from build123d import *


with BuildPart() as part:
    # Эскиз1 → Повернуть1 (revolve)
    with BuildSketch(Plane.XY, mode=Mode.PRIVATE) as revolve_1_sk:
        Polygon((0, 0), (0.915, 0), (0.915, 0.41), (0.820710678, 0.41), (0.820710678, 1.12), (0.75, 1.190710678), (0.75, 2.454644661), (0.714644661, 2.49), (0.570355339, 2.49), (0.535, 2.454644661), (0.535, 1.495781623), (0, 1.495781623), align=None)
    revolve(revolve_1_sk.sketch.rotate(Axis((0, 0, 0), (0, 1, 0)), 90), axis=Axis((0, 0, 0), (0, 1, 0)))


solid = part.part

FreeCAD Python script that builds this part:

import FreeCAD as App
import Part
import Sketcher
from FreeCAD import Vector


def add_polygon(sketch, points):
    """Adds a closed chain of lines whose ends are joined by coincident constraints."""
    first, n = sketch.GeometryCount, len(points)
    for a, b in zip(points, points[1:] + points[:1]):
        sketch.addGeometry(Part.LineSegment(App.Vector(*a, 0), App.Vector(*b, 0)), False)
    for i in range(n):
        sketch.addConstraint(Sketcher.Constraint("Coincident", first + i, 2, first + (i + 1) % n, 1))

doc = App.newDocument("Part")
body = doc.addObject("PartDesign::Body", "Body")

# Sketch on XY plane
sketch1 = body.newObject("Sketcher::SketchObject", "Sketch")
sketch1.AttachmentSupport = (doc.getObject("XY_Plane"), [""])
sketch1.MapMode = "FlatFace"
add_polygon(sketch1, [(0, 0), (0.915, 0), (0.915, 0.41), (0.821, 0.41), (0.821, 1.12), (0.75, 1.191), (0.75, 2.455), (0.715, 2.49), (0.57, 2.49), (0.535, 2.455), (0.535, 1.496), (0, 1.496)])  # lines 0-11
sketch1.addConstraint(Sketcher.Constraint("Horizontal", 0))
sketch1.addConstraint(Sketcher.Constraint("Vertical", 1))
sketch1.addConstraint(Sketcher.Constraint("Horizontal", 2))
sketch1.addConstraint(Sketcher.Constraint("Vertical", 3))
sketch1.addConstraint(Sketcher.Constraint("Vertical", 5))
sketch1.addConstraint(Sketcher.Constraint("Horizontal", 7))
sketch1.addConstraint(Sketcher.Constraint("Vertical", 9))
sketch1.addConstraint(Sketcher.Constraint("Horizontal", 10))
sketch1.addConstraint(Sketcher.Constraint("Vertical", 11))
sketch1.addConstraint(Sketcher.Constraint("Coincident", 11, 2, -1, 1))
sketch1.addConstraint(Sketcher.Constraint("Parallel", 4, 6))
sketch1.addConstraint(Sketcher.Constraint("Perpendicular", 6, 8))
sketch1.addConstraint(Sketcher.Constraint("Horizontal", 5, 2, 8, 2))
sketch1.addConstraint(Sketcher.Constraint("Equal", 6, 8))
sketch1.addConstraint(Sketcher.Constraint("Distance", 4, 0.1))
sketch1.addConstraint(Sketcher.Constraint("DistanceY", 1, 1, 1, 2, 0.41))
sketch1.addConstraint(Sketcher.Constraint("DistanceY", 3, 1, 3, 2, 0.71))
sketch1.addConstraint(Sketcher.Constraint("Distance", 6, 0.05))
sketch1.addConstraint(Sketcher.Constraint("DistanceX", 0, 1, 0, 2, 0.915))
sketch1.addConstraint(Sketcher.Constraint("DistanceX", 10, 2, 10, 1, 0.535))
sketch1.addConstraint(Sketcher.Constraint("DistanceX", -1, 1, 4, 2, 0.75))
sketch1.addConstraint(Sketcher.Constraint("DistanceY", -1, 1, 6, 2, 2.49))
sketch1.addConstraint(Sketcher.Constraint("DistanceY", 11, 2, 11, 1, 1.495782))
revolution = body.newObject("PartDesign::Revolution", "Revolution")
revolution.Profile = sketch1
revolution.ReferenceAxis = (sketch1, ["V_Axis"])
revolution.Angle = 360

doc.recompute()
